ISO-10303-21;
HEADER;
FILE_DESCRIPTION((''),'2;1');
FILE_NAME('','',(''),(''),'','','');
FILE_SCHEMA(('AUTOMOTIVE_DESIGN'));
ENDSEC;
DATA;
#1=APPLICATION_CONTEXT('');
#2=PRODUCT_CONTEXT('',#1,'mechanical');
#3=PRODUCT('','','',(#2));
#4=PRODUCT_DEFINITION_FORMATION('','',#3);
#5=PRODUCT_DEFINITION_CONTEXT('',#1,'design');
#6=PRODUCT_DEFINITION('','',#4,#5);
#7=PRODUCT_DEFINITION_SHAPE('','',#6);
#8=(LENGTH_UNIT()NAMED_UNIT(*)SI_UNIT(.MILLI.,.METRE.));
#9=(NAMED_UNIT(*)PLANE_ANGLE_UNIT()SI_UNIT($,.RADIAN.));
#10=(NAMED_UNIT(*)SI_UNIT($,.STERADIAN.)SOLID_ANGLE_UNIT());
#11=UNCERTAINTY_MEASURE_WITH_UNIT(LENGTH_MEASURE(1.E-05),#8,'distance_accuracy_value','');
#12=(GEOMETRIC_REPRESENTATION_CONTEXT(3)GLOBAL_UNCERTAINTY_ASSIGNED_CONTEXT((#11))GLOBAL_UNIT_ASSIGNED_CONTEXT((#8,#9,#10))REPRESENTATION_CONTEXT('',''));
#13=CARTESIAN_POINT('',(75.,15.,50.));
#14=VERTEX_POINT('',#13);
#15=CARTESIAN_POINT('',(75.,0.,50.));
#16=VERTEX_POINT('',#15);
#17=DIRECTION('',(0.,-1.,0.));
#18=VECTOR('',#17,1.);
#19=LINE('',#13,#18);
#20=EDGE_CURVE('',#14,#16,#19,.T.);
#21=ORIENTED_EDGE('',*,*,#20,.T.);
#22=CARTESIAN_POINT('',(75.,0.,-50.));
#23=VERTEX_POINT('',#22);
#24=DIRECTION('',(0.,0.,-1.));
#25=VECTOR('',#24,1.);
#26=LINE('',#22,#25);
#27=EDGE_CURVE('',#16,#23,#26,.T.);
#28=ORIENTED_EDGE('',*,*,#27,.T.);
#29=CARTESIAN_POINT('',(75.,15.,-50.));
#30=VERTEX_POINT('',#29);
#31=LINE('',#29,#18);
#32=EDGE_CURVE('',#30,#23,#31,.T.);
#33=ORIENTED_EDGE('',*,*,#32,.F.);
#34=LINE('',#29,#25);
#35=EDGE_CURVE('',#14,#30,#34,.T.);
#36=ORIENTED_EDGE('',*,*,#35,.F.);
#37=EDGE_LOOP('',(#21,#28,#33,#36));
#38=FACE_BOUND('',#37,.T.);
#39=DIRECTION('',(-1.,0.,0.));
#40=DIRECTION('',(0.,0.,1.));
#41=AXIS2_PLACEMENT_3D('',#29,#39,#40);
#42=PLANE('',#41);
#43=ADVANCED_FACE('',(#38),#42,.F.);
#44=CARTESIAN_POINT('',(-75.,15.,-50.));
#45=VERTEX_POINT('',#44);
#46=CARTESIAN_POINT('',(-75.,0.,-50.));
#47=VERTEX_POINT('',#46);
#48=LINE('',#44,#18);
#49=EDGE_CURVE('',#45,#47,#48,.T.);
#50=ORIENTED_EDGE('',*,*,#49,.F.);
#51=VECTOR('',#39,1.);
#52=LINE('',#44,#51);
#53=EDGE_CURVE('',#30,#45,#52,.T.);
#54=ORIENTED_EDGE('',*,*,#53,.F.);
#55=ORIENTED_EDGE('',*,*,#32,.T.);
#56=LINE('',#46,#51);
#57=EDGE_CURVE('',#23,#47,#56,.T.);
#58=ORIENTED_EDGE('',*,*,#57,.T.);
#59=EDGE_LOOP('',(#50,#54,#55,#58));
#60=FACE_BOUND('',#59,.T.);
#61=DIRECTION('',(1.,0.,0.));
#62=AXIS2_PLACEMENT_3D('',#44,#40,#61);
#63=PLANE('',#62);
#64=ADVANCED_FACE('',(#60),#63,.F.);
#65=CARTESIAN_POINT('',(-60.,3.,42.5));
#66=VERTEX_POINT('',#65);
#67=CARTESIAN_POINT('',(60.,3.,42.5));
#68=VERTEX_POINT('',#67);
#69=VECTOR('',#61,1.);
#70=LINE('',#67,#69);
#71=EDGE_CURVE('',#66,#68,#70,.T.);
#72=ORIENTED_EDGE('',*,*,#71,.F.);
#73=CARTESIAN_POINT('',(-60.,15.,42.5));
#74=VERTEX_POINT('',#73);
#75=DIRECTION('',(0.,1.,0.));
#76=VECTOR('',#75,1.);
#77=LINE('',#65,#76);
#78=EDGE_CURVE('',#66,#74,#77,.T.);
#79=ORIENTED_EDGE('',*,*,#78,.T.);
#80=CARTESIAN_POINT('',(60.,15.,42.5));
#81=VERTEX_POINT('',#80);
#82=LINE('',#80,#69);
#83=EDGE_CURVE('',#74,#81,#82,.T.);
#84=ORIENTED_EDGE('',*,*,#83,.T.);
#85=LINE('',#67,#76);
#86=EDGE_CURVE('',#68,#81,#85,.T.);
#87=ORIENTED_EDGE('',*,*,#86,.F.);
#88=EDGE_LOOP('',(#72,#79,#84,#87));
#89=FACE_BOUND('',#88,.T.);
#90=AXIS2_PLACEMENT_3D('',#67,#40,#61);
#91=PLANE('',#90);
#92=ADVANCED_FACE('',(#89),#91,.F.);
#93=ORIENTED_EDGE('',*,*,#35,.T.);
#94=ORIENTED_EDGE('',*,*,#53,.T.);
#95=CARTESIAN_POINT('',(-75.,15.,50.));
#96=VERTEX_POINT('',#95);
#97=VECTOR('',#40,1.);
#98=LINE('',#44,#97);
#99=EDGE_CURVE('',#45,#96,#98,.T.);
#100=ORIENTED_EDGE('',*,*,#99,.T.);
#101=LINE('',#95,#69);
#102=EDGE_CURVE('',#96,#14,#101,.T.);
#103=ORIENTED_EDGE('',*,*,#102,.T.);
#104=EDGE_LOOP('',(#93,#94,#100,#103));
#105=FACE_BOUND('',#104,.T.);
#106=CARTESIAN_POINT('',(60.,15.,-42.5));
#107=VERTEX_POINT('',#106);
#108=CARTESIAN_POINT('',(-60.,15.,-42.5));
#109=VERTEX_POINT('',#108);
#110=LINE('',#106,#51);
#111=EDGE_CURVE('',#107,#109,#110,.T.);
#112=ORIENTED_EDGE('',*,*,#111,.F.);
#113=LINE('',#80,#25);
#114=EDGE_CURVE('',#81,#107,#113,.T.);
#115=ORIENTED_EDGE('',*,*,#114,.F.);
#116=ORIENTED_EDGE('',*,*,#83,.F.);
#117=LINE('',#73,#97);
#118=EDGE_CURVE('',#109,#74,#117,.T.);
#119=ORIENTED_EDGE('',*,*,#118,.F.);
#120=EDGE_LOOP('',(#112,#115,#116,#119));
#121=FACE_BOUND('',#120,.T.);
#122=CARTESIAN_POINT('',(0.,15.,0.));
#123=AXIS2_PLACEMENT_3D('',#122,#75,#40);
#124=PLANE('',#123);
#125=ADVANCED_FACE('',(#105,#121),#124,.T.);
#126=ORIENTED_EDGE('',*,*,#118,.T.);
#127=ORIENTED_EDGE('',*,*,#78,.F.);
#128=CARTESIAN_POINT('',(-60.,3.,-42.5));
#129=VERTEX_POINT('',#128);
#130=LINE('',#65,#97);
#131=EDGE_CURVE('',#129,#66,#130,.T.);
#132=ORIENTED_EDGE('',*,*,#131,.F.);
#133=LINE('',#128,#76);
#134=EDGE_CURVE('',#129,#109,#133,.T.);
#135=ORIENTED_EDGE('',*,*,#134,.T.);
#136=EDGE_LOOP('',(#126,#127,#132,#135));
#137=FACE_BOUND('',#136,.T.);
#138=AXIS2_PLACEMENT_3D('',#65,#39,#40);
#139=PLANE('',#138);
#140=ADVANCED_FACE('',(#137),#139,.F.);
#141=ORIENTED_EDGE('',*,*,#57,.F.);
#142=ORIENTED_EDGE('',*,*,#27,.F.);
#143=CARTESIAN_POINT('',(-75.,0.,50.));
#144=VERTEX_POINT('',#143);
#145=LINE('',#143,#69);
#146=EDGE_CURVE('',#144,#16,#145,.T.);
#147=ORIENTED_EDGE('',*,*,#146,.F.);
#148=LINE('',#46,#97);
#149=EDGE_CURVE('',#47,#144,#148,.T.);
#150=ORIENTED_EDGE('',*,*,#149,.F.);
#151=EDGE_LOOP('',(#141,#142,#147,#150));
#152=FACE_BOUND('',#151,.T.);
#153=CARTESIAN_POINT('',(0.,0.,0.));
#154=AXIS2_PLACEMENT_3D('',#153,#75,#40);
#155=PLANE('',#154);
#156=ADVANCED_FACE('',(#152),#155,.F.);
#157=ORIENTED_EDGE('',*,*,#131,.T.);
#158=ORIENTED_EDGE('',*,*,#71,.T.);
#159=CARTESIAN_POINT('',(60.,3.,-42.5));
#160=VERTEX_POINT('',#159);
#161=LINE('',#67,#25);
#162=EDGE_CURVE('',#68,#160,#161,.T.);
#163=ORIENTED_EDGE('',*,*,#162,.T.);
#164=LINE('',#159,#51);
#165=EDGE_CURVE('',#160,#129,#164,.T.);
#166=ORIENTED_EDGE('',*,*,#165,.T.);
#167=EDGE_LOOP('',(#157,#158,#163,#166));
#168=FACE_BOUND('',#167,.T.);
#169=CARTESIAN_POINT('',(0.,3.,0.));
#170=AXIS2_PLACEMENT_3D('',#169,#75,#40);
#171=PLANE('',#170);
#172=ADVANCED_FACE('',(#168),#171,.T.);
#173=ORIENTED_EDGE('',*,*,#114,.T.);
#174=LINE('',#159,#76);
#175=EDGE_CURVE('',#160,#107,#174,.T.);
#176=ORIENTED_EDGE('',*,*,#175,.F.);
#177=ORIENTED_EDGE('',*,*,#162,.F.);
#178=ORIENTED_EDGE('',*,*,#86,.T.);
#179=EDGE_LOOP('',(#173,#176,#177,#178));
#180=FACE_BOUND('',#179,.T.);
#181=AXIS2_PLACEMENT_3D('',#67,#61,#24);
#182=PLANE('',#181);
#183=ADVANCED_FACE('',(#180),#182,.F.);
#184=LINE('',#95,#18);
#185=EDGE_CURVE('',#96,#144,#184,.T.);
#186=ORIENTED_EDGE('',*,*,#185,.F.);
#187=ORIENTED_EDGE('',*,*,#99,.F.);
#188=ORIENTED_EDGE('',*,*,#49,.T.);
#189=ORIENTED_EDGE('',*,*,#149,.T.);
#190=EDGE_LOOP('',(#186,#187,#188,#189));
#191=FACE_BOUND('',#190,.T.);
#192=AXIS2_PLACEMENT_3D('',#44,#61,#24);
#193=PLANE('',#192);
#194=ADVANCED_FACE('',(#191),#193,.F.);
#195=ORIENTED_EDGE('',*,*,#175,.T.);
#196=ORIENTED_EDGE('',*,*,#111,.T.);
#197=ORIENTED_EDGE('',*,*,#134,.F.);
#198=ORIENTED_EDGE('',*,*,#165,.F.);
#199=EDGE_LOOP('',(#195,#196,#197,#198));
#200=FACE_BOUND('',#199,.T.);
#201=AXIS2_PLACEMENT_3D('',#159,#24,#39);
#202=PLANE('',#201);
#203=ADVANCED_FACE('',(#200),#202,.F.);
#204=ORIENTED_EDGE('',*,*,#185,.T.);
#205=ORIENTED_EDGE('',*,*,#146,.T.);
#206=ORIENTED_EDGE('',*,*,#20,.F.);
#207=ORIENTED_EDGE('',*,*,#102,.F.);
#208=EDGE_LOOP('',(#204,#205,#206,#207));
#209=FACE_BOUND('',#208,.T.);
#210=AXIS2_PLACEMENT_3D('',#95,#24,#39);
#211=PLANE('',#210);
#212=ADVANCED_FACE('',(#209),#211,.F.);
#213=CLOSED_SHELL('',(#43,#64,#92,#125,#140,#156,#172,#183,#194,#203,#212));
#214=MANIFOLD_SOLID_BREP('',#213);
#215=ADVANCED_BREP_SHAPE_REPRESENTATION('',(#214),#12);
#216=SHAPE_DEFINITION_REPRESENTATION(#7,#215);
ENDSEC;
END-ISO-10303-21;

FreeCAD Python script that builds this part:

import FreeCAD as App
import Part
import Sketcher

V = App.Vector
Q = App.Units.Quantity


def add_polygon(sketch, points):
    """Adds a closed chain of lines whose ends are joined by coincident constraints."""
    first, n = sketch.GeometryCount, len(points)
    for a, b in zip(points, points[1:] + points[:1]):
        sketch.addGeometry(Part.LineSegment(App.Vector(*a, 0), App.Vector(*b, 0)), False)
    for i in range(n):
        sketch.addConstraint(Sketcher.Constraint("Coincident", first + i, 2, first + (i + 1) % n, 1))

doc = App.newDocument("Part")
body = doc.addObject("PartDesign::Body", "Body")

# Sketch on XZ plane
sketch1 = body.newObject("Sketcher::SketchObject", "Sketch")
sketch1.AttachmentSupport = (doc.getObject("XZ_Plane"), [""])
sketch1.MapMode = "FlatFace"
add_polygon(sketch1, [(-75, -50), (-75, 50), (75, 50), (75, -50)])  # lines 0-3
sketch1.addConstraint(Sketcher.Constraint("Vertical", 0))
sketch1.addConstraint(Sketcher.Constraint("Horizontal", 1))
sketch1.addConstraint(Sketcher.Constraint("Vertical", 2))
sketch1.addConstraint(Sketcher.Constraint("Horizontal", 3))
sketch1.addConstraint(Sketcher.Constraint("Symmetric", 0, 2, 2, 2, -1, 1))
sketch1.addConstraint(Sketcher.Constraint("DistanceX", 1, 1, 1, 2, Q("150 mm")))
sketch1.addConstraint(Sketcher.Constraint("DistanceY", 0, 1, 0, 2, Q("100 mm")))
pad1 = body.newObject("PartDesign::Pad", "Pad")
pad1.Profile = sketch1
pad1.Length = 15
pad1.Reversed = True

# Sketch on XZ plane
sketch2 = body.newObject("Sketcher::SketchObject", "Sketch001")
sketch2.AttachmentSupport = (doc.getObject("XZ_Plane"), [""])
sketch2.MapMode = "FlatFace"
sketch2.AttachmentOffset = App.Placement(V(0, 0, -15), App.Rotation())
add_polygon(sketch2, [(-60, -42), (-60, 42), (60, 42), (60, -42)])  # lines 0-3
sketch2.addConstraint(Sketcher.Constraint("Vertical", 0))
sketch2.addConstraint(Sketcher.Constraint("Horizontal", 1))
sketch2.addConstraint(Sketcher.Constraint("Vertical", 2))
sketch2.addConstraint(Sketcher.Constraint("Horizontal", 3))
sketch2.addConstraint(Sketcher.Constraint("Symmetric", 0, 2, 2, 2, -1, 1))
sketch2.addConstraint(Sketcher.Constraint("DistanceX", 1, 1, 1, 2, Q("120 mm")))
sketch2.addConstraint(Sketcher.Constraint("DistanceY", 0, 1, 0, 2, Q("85 mm")))
pocket1 = body.newObject("PartDesign::Pocket", "Pocket")
pocket1.Profile = sketch2
pocket1.Length = 12
pocket1.Reversed = True

doc.recompute()
